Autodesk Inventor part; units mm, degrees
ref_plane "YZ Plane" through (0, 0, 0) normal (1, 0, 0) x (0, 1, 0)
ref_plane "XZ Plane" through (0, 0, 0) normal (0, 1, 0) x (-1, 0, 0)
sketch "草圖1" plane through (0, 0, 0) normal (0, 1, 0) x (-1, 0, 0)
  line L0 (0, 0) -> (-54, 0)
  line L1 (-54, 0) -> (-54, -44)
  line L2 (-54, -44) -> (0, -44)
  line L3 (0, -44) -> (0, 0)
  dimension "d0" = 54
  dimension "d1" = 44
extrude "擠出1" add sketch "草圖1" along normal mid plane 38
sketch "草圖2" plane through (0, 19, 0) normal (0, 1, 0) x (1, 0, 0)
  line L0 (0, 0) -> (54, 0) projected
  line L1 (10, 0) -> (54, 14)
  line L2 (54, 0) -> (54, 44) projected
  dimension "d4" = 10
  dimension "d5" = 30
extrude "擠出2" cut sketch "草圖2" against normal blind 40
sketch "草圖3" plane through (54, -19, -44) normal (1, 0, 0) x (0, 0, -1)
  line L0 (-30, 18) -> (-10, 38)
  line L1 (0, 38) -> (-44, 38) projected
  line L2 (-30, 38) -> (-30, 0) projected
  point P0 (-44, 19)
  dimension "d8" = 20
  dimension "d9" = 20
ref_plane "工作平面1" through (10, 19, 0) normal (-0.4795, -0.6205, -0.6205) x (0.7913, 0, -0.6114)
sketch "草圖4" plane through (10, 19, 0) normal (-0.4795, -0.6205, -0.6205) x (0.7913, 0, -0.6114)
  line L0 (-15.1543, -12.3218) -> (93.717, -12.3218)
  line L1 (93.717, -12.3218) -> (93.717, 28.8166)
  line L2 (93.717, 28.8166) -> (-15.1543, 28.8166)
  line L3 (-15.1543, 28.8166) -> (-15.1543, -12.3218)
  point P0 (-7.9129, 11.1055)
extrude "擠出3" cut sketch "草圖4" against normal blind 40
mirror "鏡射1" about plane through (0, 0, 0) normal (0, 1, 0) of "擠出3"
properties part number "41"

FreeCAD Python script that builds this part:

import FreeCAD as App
import Part
import Sketcher
Q = App.Units.Quantity

doc = App.newDocument("Part")
body = doc.addObject("PartDesign::Body", "Body")

# Sketch on XZ plane
sketch1 = doc.addObject("Sketcher::SketchObject", "Sketch")
body.addObject(sketch1)
sketch1.AttachmentSupport = (doc.XZ_Plane, [""])
sketch1.MapMode = "FlatFace"
sketch1.addGeometry(Part.LineSegment(App.Vector(0, -44, 0), App.Vector(0, 0, 0)), False)
sketch1.addGeometry(Part.LineSegment(App.Vector(0, 0, 0), App.Vector(54, 0, 0)), False)
sketch1.addGeometry(Part.LineSegment(App.Vector(54, 0, 0), App.Vector(54, -44, 0)), False)
sketch1.addGeometry(Part.LineSegment(App.Vector(54, -44, 0), App.Vector(0, -44, 0)), False)
sketch1.addConstraint(Sketcher.Constraint("Coincident", 0, 2, 1, 1))
sketch1.addConstraint(Sketcher.Constraint("Coincident", 1, 2, 2, 1))
sketch1.addConstraint(Sketcher.Constraint("Coincident", 2, 2, 3, 1))
sketch1.addConstraint(Sketcher.Constraint("Coincident", 3, 2, 0, 1))
sketch1.addConstraint(Sketcher.Constraint("Vertical", 0))
sketch1.addConstraint(Sketcher.Constraint("Horizontal", 1))
sketch1.addConstraint(Sketcher.Constraint("Vertical", 2))
sketch1.addConstraint(Sketcher.Constraint("Horizontal", 3))
sketch1.addConstraint(Sketcher.Constraint("Coincident", 0, 2, -1, 1))
sketch1.addConstraint(Sketcher.Constraint("DistanceX", 1, 1, 1, 2, Q("54 mm")))
sketch1.addConstraint(Sketcher.Constraint("DistanceY", 0, 1, 0, 2, Q("44 mm")))
pad1 = doc.addObject("PartDesign::Pad", "Pad")
body.addObject(pad1)
pad1.Profile = sketch1
pad1.Length = 38
pad1.Midplane = True

# Sketch on XZ plane
sketch2 = doc.addObject("Sketcher::SketchObject", "Sketch001")
body.addObject(sketch2)
sketch2.AttachmentSupport = (doc.XZ_Plane, [""])
sketch2.MapMode = "FlatFace"
sketch2.AttachmentOffset = App.Placement(App.Vector(0, 0, -19), App.Rotation())
sketch2.addGeometry(Part.LineSegment(App.Vector(54, -14, 0), App.Vector(10, 0, 0)), False)
sketch2.addGeometry(Part.LineSegment(App.Vector(10, 0, 0), App.Vector(54, 0, 0)), False)
sketch2.addGeometry(Part.LineSegment(App.Vector(54, 0, 0), App.Vector(54, -14, 0)), False)
sketch2.addConstraint(Sketcher.Constraint("Coincident", 0, 2, 1, 1))
sketch2.addConstraint(Sketcher.Constraint("Coincident", 1, 2, 2, 1))
sketch2.addConstraint(Sketcher.Constraint("Coincident", 2, 2, 0, 1))
sketch2.addConstraint(Sketcher.Constraint("Horizontal", 1))
sketch2.addConstraint(Sketcher.Constraint("Vertical", 2))
sketch2.addConstraint(Sketcher.Constraint("PointOnObject", 0, 2, -1))
sketch2.addConstraint(Sketcher.Constraint("DistanceX", -1, 1, 0, 2, Q("10 mm")))
sketch2.addConstraint(Sketcher.Constraint("DistanceX", 1, 1, 1, 2, Q("44 mm")))
sketch2.addConstraint(Sketcher.Constraint("DistanceY", 2, 2, 2, 1, Q("14 mm")))
pocket1 = doc.addObject("PartDesign::Pocket", "Pocket")
body.addObject(pocket1)
pocket1.Profile = sketch2
pocket1.Length = 40
pocket1.Reversed = True

# Sketch on an angled plane
sketch3 = doc.addObject("Sketcher::SketchObject", "Sketch002")
body.addObject(sketch3)
sketch3.Placement = App.Placement(App.Vector(10, 19, 0), App.Rotation(App.Vector(0.791287386, -0.000033912, -0.611444414), App.Vector(0.379387662, -0.78419681, 0.49101972), App.Vector(-0.47950941, -0.620512178, -0.620512178), "ZXY"))
sketch3.addGeometry(Part.LineSegment(App.Vector(-15, 29, 0), App.Vector(-15, -12, 0)), False)
sketch3.addGeometry(Part.LineSegment(App.Vector(-15, -12, 0), App.Vector(94, -12, 0)), False)
sketch3.addGeometry(Part.LineSegment(App.Vector(94, -12, 0), App.Vector(94, 29, 0)), False)
sketch3.addGeometry(Part.LineSegment(App.Vector(94, 29, 0), App.Vector(-15, 29, 0)), False)
sketch3.addConstraint(Sketcher.Constraint("Coincident", 0, 2, 1, 1))
sketch3.addConstraint(Sketcher.Constraint("Coincident", 1, 2, 2, 1))
sketch3.addConstraint(Sketcher.Constraint("Coincident", 2, 2, 3, 1))
sketch3.addConstraint(Sketcher.Constraint("Coincident", 3, 2, 0, 1))
sketch3.addConstraint(Sketcher.Constraint("Vertical", 0))
sketch3.addConstraint(Sketcher.Constraint("Horizontal", 1))
sketch3.addConstraint(Sketcher.Constraint("Vertical", 2))
sketch3.addConstraint(Sketcher.Constraint("Horizontal", 3))
sketch3.addConstraint(Sketcher.Constraint("DistanceX", 1, 1, 1, 2, Q("108.8713 mm")))
sketch3.addConstraint(Sketcher.Constraint("DistanceY", 0, 2, 0, 1, Q("41.1384 mm")))
sketch3.addConstraint(Sketcher.Constraint("DistanceX", -1, 1, 1, 2, Q("93.717 mm")))
sketch3.addConstraint(Sketcher.Constraint("DistanceY", 0, 2, -1, 1, Q("12.3218 mm")))
pocket2 = doc.addObject("PartDesign::Pocket", "Pocket001")
body.addObject(pocket2)
pocket2.Profile = sketch3
pocket2.Length = 40
doc.recompute()

mirrored = doc.addObject("PartDesign::Mirrored", "Mirrored")
body.addObject(mirrored)
mirrored.Originals = [pocket2]
mirrored.MirrorPlane = (doc.XZ_Plane, [""])
body.Tip = mirrored

doc.recompute()
